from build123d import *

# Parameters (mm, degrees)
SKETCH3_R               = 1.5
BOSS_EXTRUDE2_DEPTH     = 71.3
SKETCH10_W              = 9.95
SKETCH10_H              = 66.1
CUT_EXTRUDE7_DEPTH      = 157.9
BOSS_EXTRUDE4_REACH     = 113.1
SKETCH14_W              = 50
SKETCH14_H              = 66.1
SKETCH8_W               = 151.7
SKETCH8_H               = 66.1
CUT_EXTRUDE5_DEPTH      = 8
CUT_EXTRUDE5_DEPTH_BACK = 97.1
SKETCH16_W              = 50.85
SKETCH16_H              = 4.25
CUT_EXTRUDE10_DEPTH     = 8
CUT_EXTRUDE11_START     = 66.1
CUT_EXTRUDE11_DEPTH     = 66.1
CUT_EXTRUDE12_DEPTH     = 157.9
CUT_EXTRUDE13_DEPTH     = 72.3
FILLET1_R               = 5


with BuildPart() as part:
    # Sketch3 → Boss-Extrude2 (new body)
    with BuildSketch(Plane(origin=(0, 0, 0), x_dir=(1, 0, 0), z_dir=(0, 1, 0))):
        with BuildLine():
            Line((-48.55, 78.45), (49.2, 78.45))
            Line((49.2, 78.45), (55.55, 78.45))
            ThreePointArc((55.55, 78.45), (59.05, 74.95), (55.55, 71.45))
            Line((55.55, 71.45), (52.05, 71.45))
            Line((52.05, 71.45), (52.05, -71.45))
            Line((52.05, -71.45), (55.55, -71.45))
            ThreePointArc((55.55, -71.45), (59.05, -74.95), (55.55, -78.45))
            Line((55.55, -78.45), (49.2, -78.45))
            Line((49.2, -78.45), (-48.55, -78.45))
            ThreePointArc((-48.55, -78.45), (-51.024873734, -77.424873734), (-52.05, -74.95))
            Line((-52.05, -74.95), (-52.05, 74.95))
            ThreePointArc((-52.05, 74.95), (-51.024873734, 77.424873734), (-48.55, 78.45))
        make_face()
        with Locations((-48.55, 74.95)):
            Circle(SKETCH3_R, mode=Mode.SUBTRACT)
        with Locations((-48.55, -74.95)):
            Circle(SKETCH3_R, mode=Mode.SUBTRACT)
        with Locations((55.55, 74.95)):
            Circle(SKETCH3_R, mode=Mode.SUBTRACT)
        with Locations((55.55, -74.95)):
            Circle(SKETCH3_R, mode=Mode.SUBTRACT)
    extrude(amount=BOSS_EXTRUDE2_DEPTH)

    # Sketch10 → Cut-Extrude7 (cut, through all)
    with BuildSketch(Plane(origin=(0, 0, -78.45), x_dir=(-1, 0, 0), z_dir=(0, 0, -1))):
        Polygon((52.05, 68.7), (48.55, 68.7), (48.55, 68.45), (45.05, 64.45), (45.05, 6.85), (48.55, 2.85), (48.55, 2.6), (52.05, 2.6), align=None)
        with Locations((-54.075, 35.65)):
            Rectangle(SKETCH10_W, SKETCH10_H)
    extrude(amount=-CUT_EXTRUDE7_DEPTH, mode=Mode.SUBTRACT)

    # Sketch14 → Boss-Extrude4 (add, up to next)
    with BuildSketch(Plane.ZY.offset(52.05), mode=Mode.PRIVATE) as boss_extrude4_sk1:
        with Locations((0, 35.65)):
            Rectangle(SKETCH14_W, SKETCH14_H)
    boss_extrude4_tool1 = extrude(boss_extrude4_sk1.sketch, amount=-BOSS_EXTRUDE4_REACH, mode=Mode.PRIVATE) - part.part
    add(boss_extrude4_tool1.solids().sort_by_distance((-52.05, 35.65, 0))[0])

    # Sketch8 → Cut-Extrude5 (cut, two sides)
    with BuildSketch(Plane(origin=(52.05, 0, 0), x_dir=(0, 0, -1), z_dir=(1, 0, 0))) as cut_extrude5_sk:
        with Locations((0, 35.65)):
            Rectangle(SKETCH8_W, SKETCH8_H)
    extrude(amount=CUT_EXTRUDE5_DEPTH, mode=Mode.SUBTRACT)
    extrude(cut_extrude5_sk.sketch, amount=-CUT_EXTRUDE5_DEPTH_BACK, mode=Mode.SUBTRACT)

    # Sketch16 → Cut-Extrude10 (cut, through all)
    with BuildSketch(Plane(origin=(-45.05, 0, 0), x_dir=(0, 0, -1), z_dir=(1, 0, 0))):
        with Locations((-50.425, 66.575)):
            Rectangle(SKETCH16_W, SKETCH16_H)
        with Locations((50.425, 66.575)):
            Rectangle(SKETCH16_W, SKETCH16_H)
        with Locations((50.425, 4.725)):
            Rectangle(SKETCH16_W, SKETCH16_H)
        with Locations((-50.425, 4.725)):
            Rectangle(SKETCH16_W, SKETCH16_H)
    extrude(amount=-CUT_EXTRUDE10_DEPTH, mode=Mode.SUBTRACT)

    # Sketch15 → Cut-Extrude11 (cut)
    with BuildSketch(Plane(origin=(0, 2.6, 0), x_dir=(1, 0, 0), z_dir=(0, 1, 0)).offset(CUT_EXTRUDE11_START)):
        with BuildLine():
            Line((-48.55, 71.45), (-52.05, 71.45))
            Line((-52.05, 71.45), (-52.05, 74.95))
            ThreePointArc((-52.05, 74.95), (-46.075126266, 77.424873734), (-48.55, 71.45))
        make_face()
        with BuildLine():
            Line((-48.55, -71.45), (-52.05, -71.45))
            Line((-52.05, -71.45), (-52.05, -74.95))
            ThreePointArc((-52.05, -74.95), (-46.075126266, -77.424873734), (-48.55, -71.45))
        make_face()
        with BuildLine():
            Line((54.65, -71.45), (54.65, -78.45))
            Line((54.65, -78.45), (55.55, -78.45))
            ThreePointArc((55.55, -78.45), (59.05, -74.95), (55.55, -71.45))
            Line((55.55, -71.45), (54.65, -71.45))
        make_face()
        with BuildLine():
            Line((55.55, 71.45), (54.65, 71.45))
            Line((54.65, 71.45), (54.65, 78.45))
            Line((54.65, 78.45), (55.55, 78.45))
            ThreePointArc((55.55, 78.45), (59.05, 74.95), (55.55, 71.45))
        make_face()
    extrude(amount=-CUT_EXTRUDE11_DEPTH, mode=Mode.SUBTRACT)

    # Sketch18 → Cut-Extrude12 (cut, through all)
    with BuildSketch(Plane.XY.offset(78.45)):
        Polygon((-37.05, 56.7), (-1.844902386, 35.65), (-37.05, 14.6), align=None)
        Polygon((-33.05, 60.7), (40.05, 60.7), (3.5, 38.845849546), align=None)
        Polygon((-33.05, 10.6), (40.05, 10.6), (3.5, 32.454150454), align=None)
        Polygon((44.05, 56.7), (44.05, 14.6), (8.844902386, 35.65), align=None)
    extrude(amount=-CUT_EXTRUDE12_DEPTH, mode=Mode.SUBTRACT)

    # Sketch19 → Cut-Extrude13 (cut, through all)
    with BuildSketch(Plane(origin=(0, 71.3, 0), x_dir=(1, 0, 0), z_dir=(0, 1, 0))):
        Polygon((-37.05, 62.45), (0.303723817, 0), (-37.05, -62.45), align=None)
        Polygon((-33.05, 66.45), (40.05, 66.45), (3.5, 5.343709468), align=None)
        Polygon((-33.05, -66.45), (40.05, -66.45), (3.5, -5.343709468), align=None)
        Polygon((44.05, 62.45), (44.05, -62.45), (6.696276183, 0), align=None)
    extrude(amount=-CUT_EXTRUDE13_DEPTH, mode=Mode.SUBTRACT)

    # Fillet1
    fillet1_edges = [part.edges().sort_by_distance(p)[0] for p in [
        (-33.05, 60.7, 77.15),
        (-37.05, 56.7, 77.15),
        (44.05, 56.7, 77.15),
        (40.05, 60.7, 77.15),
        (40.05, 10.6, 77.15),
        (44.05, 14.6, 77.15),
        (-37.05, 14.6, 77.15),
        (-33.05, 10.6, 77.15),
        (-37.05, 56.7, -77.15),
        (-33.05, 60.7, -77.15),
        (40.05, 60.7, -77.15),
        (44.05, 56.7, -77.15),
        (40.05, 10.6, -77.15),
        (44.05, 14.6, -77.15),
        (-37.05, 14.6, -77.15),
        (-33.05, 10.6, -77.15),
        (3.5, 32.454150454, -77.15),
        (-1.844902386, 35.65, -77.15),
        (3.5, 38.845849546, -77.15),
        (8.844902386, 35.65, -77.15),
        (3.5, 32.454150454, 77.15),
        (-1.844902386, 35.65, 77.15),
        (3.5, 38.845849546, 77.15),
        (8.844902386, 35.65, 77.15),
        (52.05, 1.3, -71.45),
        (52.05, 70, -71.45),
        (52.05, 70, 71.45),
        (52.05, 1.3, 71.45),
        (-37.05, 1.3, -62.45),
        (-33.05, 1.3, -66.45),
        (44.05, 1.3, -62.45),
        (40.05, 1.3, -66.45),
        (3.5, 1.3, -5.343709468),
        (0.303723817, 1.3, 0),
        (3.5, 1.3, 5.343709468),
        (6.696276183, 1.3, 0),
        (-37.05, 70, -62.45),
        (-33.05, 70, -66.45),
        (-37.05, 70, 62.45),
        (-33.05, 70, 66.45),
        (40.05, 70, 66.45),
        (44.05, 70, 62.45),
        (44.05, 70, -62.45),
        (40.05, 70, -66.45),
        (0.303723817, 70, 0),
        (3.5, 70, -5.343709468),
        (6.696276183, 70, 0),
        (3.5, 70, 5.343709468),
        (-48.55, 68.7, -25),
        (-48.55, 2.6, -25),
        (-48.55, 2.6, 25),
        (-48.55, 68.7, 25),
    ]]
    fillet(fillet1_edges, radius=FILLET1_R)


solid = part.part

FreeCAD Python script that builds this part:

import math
import FreeCAD as App
import Part
import Sketcher

V = App.Vector


def edges_at(feature, points):
    """Names of the edges that pass closest to the given points."""
    edges = feature.Shape.Edges
    near = lambda p: min(range(len(edges)), key=lambda i: edges[i].distToShape(Part.Vertex(*p))[0])
    return sorted({f"Edge{near(p) + 1}" for p in points})


def add_polygon(sketch, points):
    """Adds a closed chain of lines whose ends are joined by coincident constraints."""
    first, n = sketch.GeometryCount, len(points)
    for a, b in zip(points, points[1:] + points[:1]):
        sketch.addGeometry(Part.LineSegment(App.Vector(*a, 0), App.Vector(*b, 0)), False)
    for i in range(n):
        sketch.addConstraint(Sketcher.Constraint("Coincident", first + i, 2, first + (i + 1) % n, 1))

doc = App.newDocument("Part")
params = doc.addObject("Spreadsheet::Sheet", "Params")
for row, (alias, value) in enumerate([
    ("sketch1_diameter", "3 mm"),
    ("sketch1_radius", "3.5 mm"),
    ("sketch1_width", "104.1 mm"),
    ("sketch1_width2", "3.5 mm"),
    ("sketch1_height", "149.9 mm"),
    ("pad1_length", "71.3 mm"),
    ("sketch2_width", "3.5 mm"),
    ("sketch2_height", "57.6 mm"),
    ("sketch2_height2", "66.1 mm"),
    ("sketch2_width2", "9.95 mm"),
    ("sketch3_height", "50 mm"),
    ("sketch3_width", "66.1 mm"),
    ("sketch4_width", "66.1 mm"),
    ("sketch4_height", "151.7 mm"),
    ("pocket2_length", "8 mm"),
    ("pocket2_length2", "97.1 mm"),
    ("sketch5_width", "4.25 mm"),
    ("sketch5_height", "50.85 mm"),
    ("sketch6_radius", "3.5 mm"),
    ("sketch6_width", "0.9 mm"),
    ("pocket4_length", "66.1 mm"),
    ("sketch7_width", "73.1 mm"),
    ("sketch7_height", "42.1 mm"),
    ("sketch8_width", "73.1 mm"),
    ("sketch8_height", "124.9 mm"),
    ("fillet_radius", "5 mm"),
], start=1):
    params.set(f"A{row}", alias)
    params.set(f"B{row}", "=" + value)
    params.setAlias(f"B{row}", alias)

body = doc.addObject("PartDesign::Body", "Body")

# Sketch on XZ plane
sketch1 = body.newObject("Sketcher::SketchObject", "Sketch")
sketch1.AttachmentSupport = (doc.getObject("XZ_Plane"), [""])
sketch1.MapMode = "FlatFace"
sketch1.addGeometry([
    Part.LineSegment(V(55.55, -78.45, 0), V(-48.55, -78.45, 0)),  # 0
    Part.ArcOfCircle(Part.Circle(V(-48.55, -74.95, 0), V(0, 0, 1), 3.5), math.radians(-180), math.radians(-90)),  # 1
    Part.LineSegment(V(-52.05, -74.95, 0), V(-52.05, 74.95, 0)),  # 2
    Part.ArcOfCircle(Part.Circle(V(-48.55, 74.95, 0), V(0, 0, 1), 3.5), math.radians(90), math.radians(180)),  # 3
    Part.LineSegment(V(-48.55, 78.45, 0), V(55.55, 78.45, 0)),  # 4
    Part.ArcOfCircle(Part.Circle(V(55.55, 74.95, 0), V(0, 0, 1), 3.5), math.radians(-90), math.radians(90)),  # 5
    Part.LineSegment(V(55.55, 71.45, 0), V(52.05, 71.45, 0)),  # 6
    Part.LineSegment(V(52.05, 71.45, 0), V(52.05, -71.45, 0)),  # 7
    Part.LineSegment(V(52.05, -71.45, 0), V(55.55, -71.45, 0)),  # 8
    Part.ArcOfCircle(Part.Circle(V(55.55, -74.95, 0), V(0, 0, 1), 3.5), math.radians(-90), math.radians(90)),  # 9
    Part.Circle(V(55.55, 74.95, 0), V(0, 0, 1), 1.5),  # 10
    Part.Circle(V(-48.55, 74.95, 0), V(0, 0, 1), 1.5),  # 11
    Part.Circle(V(55.55, -74.95, 0), V(0, 0, 1), 1.5),  # 12
    Part.Circle(V(-48.55, -74.95, 0), V(0, 0, 1), 1.5),  # 13
], False)
sketch1.addConstraint([
    Sketcher.Constraint("Tangent", 0, 2, 1, 2),
    Sketcher.Constraint("Tangent", 1, 1, 2, 1),
    Sketcher.Constraint("Tangent", 2, 2, 3, 2),
    Sketcher.Constraint("Tangent", 3, 1, 4, 1),
    Sketcher.Constraint("Tangent", 4, 2, 5, 2),
    Sketcher.Constraint("Tangent", 5, 1, 6, 1),
    Sketcher.Constraint("Coincident", 6, 2, 7, 1),
    Sketcher.Constraint("Coincident", 7, 2, 8, 1),
    Sketcher.Constraint("Tangent", 8, 2, 9, 2),
    Sketcher.Constraint("Tangent", 9, 1, 0, 1),
    Sketcher.Constraint("Horizontal", 0),
    Sketcher.Constraint("Vertical", 2),
    Sketcher.Constraint("Horizontal", 4),
    Sketcher.Constraint("Horizontal", 6),
    Sketcher.Constraint("Vertical", 7),
    Sketcher.Constraint("Horizontal", 8),
    Sketcher.Constraint("Coincident", 10, 3, 5, 3),
    Sketcher.Constraint("Coincident", 11, 3, 3, 3),
    Sketcher.Constraint("Coincident", 12, 3, 9, 3),
    Sketcher.Constraint("Coincident", 13, 3, 1, 3),
    Sketcher.Constraint("Equal", 1, 3),
    Sketcher.Constraint("Equal", 3, 5),
    Sketcher.Constraint("Equal", 5, 9),
    Sketcher.Constraint("Equal", 10, 11),
    Sketcher.Constraint("Equal", 11, 12),
    Sketcher.Constraint("Equal", 12, 13),
    Sketcher.Constraint("Symmetric", 5, 3, 9, 3, -1),
    Sketcher.Constraint("Diameter", 10, 3.0),
    Sketcher.Constraint("Radius", 1, 3.5),
    Sketcher.Constraint("DistanceX", 0, 2, 0, 1, 104.1),
    Sketcher.Constraint("DistanceX", 6, 2, 6, 1, 3.5),
    Sketcher.Constraint("DistanceY", 2, 1, 2, 2, 149.9),
    Sketcher.Constraint("DistanceX", 1, 3, -1, 1, 48.55),
])
sketch1.setExpression("Constraints[27]", "Params.sketch1_diameter")
sketch1.setExpression("Constraints[28]", "Params.sketch1_radius")
sketch1.setExpression("Constraints[29]", "Params.sketch1_width")
sketch1.setExpression("Constraints[30]", "Params.sketch1_width2")
sketch1.setExpression("Constraints[31]", "Params.sketch1_height")
pad1 = body.newObject("PartDesign::Pad", "Pad")
pad1.Profile = sketch1
pad1.setExpression("Length", "Params.pad1_length")
pad1.Reversed = True

# Sketch on XY plane
sketch2 = body.newObject("Sketcher::SketchObject", "Sketch001")
sketch2.AttachmentSupport = (doc.getObject("XY_Plane"), [""])
sketch2.MapMode = "FlatFace"
sketch2.AttachmentOffset = App.Placement(V(0, 0, -78.45), App.Rotation())
add_polygon(sketch2, [(-52.05, 68.7), (-48.55, 68.7), (-48.55, 68.45), (-45.05, 64.45), (-45.05, 6.85), (-48.55, 2.85), (-48.55, 2.6), (-52.05, 2.6)])  # lines 0-7
add_polygon(sketch2, [(59.05, 68.7), (59.05, 2.6), (49.1, 2.6), (49.1, 68.7)])  # lines 8-11
sketch2.addConstraint([
    Sketcher.Constraint("Horizontal", 0),
    Sketcher.Constraint("Vertical", 1),
    Sketcher.Constraint("Vertical", 3),
    Sketcher.Constraint("Vertical", 5),
    Sketcher.Constraint("Horizontal", 6),
    Sketcher.Constraint("Vertical", 7),
    Sketcher.Constraint("Vertical", 8),
    Sketcher.Constraint("Horizontal", 9),
    Sketcher.Constraint("Vertical", 10),
    Sketcher.Constraint("Horizontal", 11),
    Sketcher.Constraint("Horizontal", 6, 2, 8, 2),
    Sketcher.Constraint("Horizontal", 7, 2, 10, 2),
    Sketcher.Constraint("Vertical", 1, 2, 4, 2),
    Sketcher.Constraint("Equal", 1, 5),
    Sketcher.Constraint("Equal", 2, 4),
    Sketcher.Constraint("DistanceX", 0, 1, 0, 2, 3.5),
    Sketcher.Constraint("DistanceY", 3, 2, 3, 1, 57.6),
    Sketcher.Constraint("DistanceY", 7, 1, 7, 2, 66.1),
    Sketcher.Constraint("DistanceY", 2, 2, 1, 2, 4.0),
    Sketcher.Constraint("DistanceX", 6, 2, 3, 2, 7.0),
    Sketcher.Constraint("DistanceX", 9, 2, 9, 1, 9.95),
    Sketcher.Constraint("DistanceY", -1, 1, 0, 2, 68.7),
    Sketcher.Constraint("DistanceX", -1, 1, 9, 2, 49.1),
    Sketcher.Constraint("DistanceX", 3, 2, 8, 2, 104.1),
])
sketch2.setExpression("Constraints[27]", "Params.sketch2_width")
sketch2.setExpression("Constraints[28]", "Params.sketch2_height")
sketch2.setExpression("Constraints[29]", "Params.sketch2_height2")
sketch2.setExpression("Constraints[32]", "Params.sketch2_width2")
pocket1 = body.newObject("PartDesign::Pocket", "Pocket")
pocket1.Profile = sketch2
pocket1.Type = "ThroughAll"
pocket1.Reversed = True

# Sketch on YZ plane
sketch3 = body.newObject("Sketcher::SketchObject", "Sketch002")
sketch3.AttachmentSupport = (doc.getObject("YZ_Plane"), [""])
sketch3.MapMode = "FlatFace"
sketch3.AttachmentOffset = App.Placement(V(0, 0, -52.05), App.Rotation())
add_polygon(sketch3, [(68.7, -25), (2.6, -25), (2.6, 25), (68.7, 25)])  # lines 0-3
sketch3.addConstraint([
    Sketcher.Constraint("Horizontal", 0),
    Sketcher.Constraint("Vertical", 1),
    Sketcher.Constraint("Horizontal", 2),
    Sketcher.Constraint("Vertical", 3),
    Sketcher.Constraint("DistanceY", 1, 1, 1, 2, 50.0),
    Sketcher.Constraint("DistanceX", 0, 2, 0, 1, 66.1),
    Sketcher.Constraint("DistanceY", 0, 2, -1, 1, 25.0),
    Sketcher.Constraint("DistanceX", -1, 1, 0, 2, 2.6),
])
sketch3.setExpression("Constraints[8]", "Params.sketch3_height")
sketch3.setExpression("Constraints[9]", "Params.sketch3_width")
pad2 = body.newObject("PartDesign::Pad", "Pad001")
pad2.Profile = sketch3
pad2.Type = "UpToFirst"

# Sketch on YZ plane
sketch4 = body.newObject("Sketcher::SketchObject", "Sketch003")
sketch4.AttachmentSupport = (doc.getObject("YZ_Plane"), [""])
sketch4.MapMode = "FlatFace"
sketch4.AttachmentOffset = App.Placement(V(0, 0, 52.05), App.Rotation())
add_polygon(sketch4, [(68.7, 75.85), (2.6, 75.85), (2.6, -75.85), (68.7, -75.85)])  # lines 0-3
sketch4.addConstraint([
    Sketcher.Constraint("Horizontal", 0),
    Sketcher.Constraint("Vertical", 1),
    Sketcher.Constraint("Horizontal", 2),
    Sketcher.Constraint("Vertical", 3),
    Sketcher.Constraint("DistanceX", 0, 2, 0, 1, 66.1),
    Sketcher.Constraint("DistanceY", 1, 2, 1, 1, 151.7),
    Sketcher.Constraint("DistanceX", -1, 1, 0, 2, 2.6),
    Sketcher.Constraint("DistanceY", -1, 1, 0, 2, 75.85),
])
sketch4.setExpression("Constraints[8]", "Params.sketch4_width")
sketch4.setExpression("Constraints[9]", "Params.sketch4_height")
pocket2 = body.newObject("PartDesign::Pocket", "Pocket001")
pocket2.Profile = sketch4
pocket2.Type = "TwoLengths"
pocket2.setExpression("Length", "Params.pocket2_length")
pocket2.setExpression("Length2", "Params.pocket2_length2")
pocket2.Reversed = True

# Sketch on YZ plane
sketch5 = body.newObject("Sketcher::SketchObject", "Sketch004")
sketch5.AttachmentSupport = (doc.getObject("YZ_Plane"), [""])
sketch5.MapMode = "FlatFace"
sketch5.AttachmentOffset = App.Placement(V(0, 0, -45.05), App.Rotation())
add_polygon(sketch5, [(68.7, 75.85), (64.45, 75.85), (64.45, 25), (68.7, 25)])  # lines 0-3
add_polygon(sketch5, [(68.7, -25), (64.45, -25), (64.45, -75.85), (68.7, -75.85)])  # lines 4-7
add_polygon(sketch5, [(6.85, -25), (2.6, -25), (2.6, -75.85), (6.85, -75.85)])  # lines 8-11
add_polygon(sketch5, [(6.85, 75.85), (2.6, 75.85), (2.6, 25), (6.85, 25)])  # lines 12-15
sketch5.addConstraint([
    Sketcher.Constraint("Horizontal", 0),
    Sketcher.Constraint("Vertical", 1),
    Sketcher.Constraint("Horizontal", 2),
    Sketcher.Constraint("Vertical", 3),
    Sketcher.Constraint("Horizontal", 4),
    Sketcher.Constraint("Vertical", 5),
    Sketcher.Constraint("Horizontal", 6),
    Sketcher.Constraint("Vertical", 7),
    Sketcher.Constraint("Horizontal", 8),
    Sketcher.Constraint("Vertical", 9),
    Sketcher.Constraint("Horizontal", 10),
    Sketcher.Constraint("Vertical", 11),
    Sketcher.Constraint("Horizontal", 12),
    Sketcher.Constraint("Vertical", 13),
    Sketcher.Constraint("Horizontal", 14),
    Sketcher.Constraint("Vertical", 15),
    Sketcher.Constraint("Symmetric", 1, 2, 4, 2, -1),
    Sketcher.Constraint("Symmetric", 3, 2, 6, 2, -1),
    Sketcher.Constraint("Symmetric", 9, 2, 12, 2, -1),
    Sketcher.Constraint("Symmetric", 11, 2, 14, 2, -1),
    Sketcher.Constraint("Horizontal", 7, 2, 8, 2),
    Sketcher.Constraint("Horizontal", 6, 2, 9, 2),
    Sketcher.Constraint("Equal", 6, 8),
    Sketcher.Constraint("DistanceY", -1, 1, 1, 2, 25.0),
    Sketcher.Constraint("DistanceX", 0, 2, 0, 1, 4.25),
    Sketcher.Constraint("DistanceY", 1, 2, 1, 1, 50.85),
    Sketcher.Constraint("DistanceX", -1, 1, 2, 2, 68.7),
    Sketcher.Constraint("DistanceX", -1, 1, 8, 2, 2.6),
])
sketch5.setExpression("Constraints[40]", "Params.sketch5_width")
sketch5.setExpression("Constraints[41]", "Params.sketch5_height")
pocket3 = body.newObject("PartDesign::Pocket", "Pocket002")
pocket3.Profile = sketch5
pocket3.Type = "ThroughAll"

# Sketch on XZ plane
sketch6 = body.newObject("Sketcher::SketchObject", "Sketch005")
sketch6.AttachmentSupport = (doc.getObject("XZ_Plane"), [""])
sketch6.MapMode = "FlatFace"
sketch6.AttachmentOffset = App.Placement(V(0, 0, -68.7), App.Rotation())
sketch6.addGeometry([
    Part.LineSegment(V(-52.05, -71.45, 0), V(-48.55, -71.45, 0)),  # 0
    Part.ArcOfCircle(Part.Circle(V(-48.55, -74.95, 0), V(0, 0, 1), 3.5), math.radians(180), math.radians(450)),  # 1
    Part.LineSegment(V(-52.05, -74.95, 0), V(-52.05, -71.45, 0)),  # 2
    Part.LineSegment(V(-48.55, 71.45, 0), V(-52.05, 71.45, 0)),  # 3
    Part.LineSegment(V(-52.05, 71.45, 0), V(-52.05, 74.95, 0)),  # 4
    Part.ArcOfCircle(Part.Circle(V(-48.55, 74.95, 0), V(0, 0, 1), 3.5), math.radians(-90), math.radians(180)),  # 5
    Part.LineSegment(V(54.65, 71.45, 0), V(54.65, 78.45, 0)),  # 6
    Part.LineSegment(V(54.65, 78.45, 0), V(55.55, 78.45, 0)),  # 7
    Part.ArcOfCircle(Part.Circle(V(55.55, 74.95, 0), V(0, 0, 1), 3.5), math.radians(-90), math.radians(90)),  # 8
    Part.LineSegment(V(55.55, 71.45, 0), V(54.65, 71.45, 0)),  # 9
    Part.LineSegment(V(54.65, -71.45, 0), V(55.55, -71.45, 0)),  # 10
    Part.ArcOfCircle(Part.Circle(V(55.55, -74.95, 0), V(0, 0, 1), 3.5), math.radians(-90), math.radians(90)),  # 11
    Part.LineSegment(V(55.55, -78.45, 0), V(54.65, -78.45, 0)),  # 12
    Part.LineSegment(V(54.65, -78.45, 0), V(54.65, -71.45, 0)),  # 13
], False)
sketch6.addConstraint([
    Sketcher.Constraint("Tangent", 0, 2, 1, 2),
    Sketcher.Constraint("Tangent", 1, 1, 2, 1),
    Sketcher.Constraint("Coincident", 2, 2, 0, 1),
    Sketcher.Constraint("Coincident", 3, 2, 4, 1),
    Sketcher.Constraint("Tangent", 4, 2, 5, 2),
    Sketcher.Constraint("Tangent", 5, 1, 3, 1),
    Sketcher.Constraint("Coincident", 6, 2, 7, 1),
    Sketcher.Constraint("Tangent", 7, 2, 8, 2),
    Sketcher.Constraint("Tangent", 8, 1, 9, 1),
    Sketcher.Constraint("Coincident", 9, 2, 6, 1),
    Sketcher.Constraint("Tangent", 10, 2, 11, 2),
    Sketcher.Constraint("Tangent", 11, 1, 12, 1),
    Sketcher.Constraint("Coincident", 12, 2, 13, 1),
    Sketcher.Constraint("Coincident", 13, 2, 10, 1),
    Sketcher.Constraint("Horizontal", 0),
    Sketcher.Constraint("Vertical", 2),
    Sketcher.Constraint("Horizontal", 3),
    Sketcher.Constraint("Vertical", 4),
    Sketcher.Constraint("Vertical", 6),
    Sketcher.Constraint("Horizontal", 7),
    Sketcher.Constraint("Horizontal", 9),
    Sketcher.Constraint("Horizontal", 10),
    Sketcher.Constraint("Horizontal", 12),
    Sketcher.Constraint("Vertical", 13),
    Sketcher.Constraint("Equal", 1, 5),
    Sketcher.Constraint("Equal", 5, 8),
    Sketcher.Constraint("Equal", 8, 11),
    Sketcher.Constraint("Symmetric", 1, 3, 5, 3, -1),
    Sketcher.Constraint("Symmetric", 8, 3, 11, 3, -1),
    Sketcher.Constraint("Horizontal", 5, 3, 8, 3),
    Sketcher.Constraint("Vertical", 9, 2, 12, 2),
    Sketcher.Constraint("Radius", 1, 3.5),
    Sketcher.Constraint("DistanceX", 7, 1, 7, 2, 0.9),
    Sketcher.Constraint("DistanceY", 1, 3, 5, 3, 149.9),
    Sketcher.Constraint("DistanceX", 5, 3, 8, 3, 104.1),
    Sketcher.Constraint("DistanceX", 1, 3, -1, 1, 48.55),
])
sketch6.setExpression("Constraints[31]", "Params.sketch6_radius")
sketch6.setExpression("Constraints[32]", "Params.sketch6_width")
pocket4 = body.newObject("PartDesign::Pocket", "Pocket003")
pocket4.Profile = sketch6
pocket4.setExpression("Length", "Params.pocket4_length")
pocket4.Reversed = True

# Sketch on XY plane
sketch7 = body.newObject("Sketcher::SketchObject", "Sketch006")
sketch7.AttachmentSupport = (doc.getObject("XY_Plane"), [""])
sketch7.MapMode = "FlatFace"
sketch7.AttachmentOffset = App.Placement(V(0, 0, 78.45), App.Rotation())
add_polygon(sketch7, [(-1.844902, 35.65), (-37.05, 56.7), (-37.05, 14.6)])  # lines 0-2
add_polygon(sketch7, [(40.05, 60.7), (-33.05, 60.7), (3.5, 38.84585)])  # lines 3-5
add_polygon(sketch7, [(-33.05, 10.6), (40.05, 10.6), (3.5, 32.45415)])  # lines 6-8
add_polygon(sketch7, [(44.05, 14.6), (44.05, 56.7), (8.844902, 35.65)])  # lines 9-11
sketch7.addConstraint([
    Sketcher.Constraint("Vertical", 1),
    Sketcher.Constraint("Horizontal", 3),
    Sketcher.Constraint("Horizontal", 6),
    Sketcher.Constraint("Vertical", 9),
    Sketcher.Constraint("Parallel", 0, 4),
    Sketcher.Constraint("Parallel", 2, 5),
    Sketcher.Constraint("Parallel", 4, 7),
    Sketcher.Constraint("Parallel", 5, 8),
    Sketcher.Constraint("Parallel", 8, 10),
    Sketcher.Constraint("Parallel", 7, 11),
    Sketcher.Constraint("Horizontal", 0, 2, 9, 2),
    Sketcher.Constraint("Horizontal", 2, 2, 10, 2),
    Sketcher.Constraint("Horizontal", 1, 2, 11, 2),
    Sketcher.Constraint("Vertical", 5, 2, 6, 2),
    Sketcher.Constraint("Vertical", 4, 2, 7, 2),
    Sketcher.Constraint("DistanceX", 3, 2, 3, 1, 73.1),
    Sketcher.Constraint("DistanceY", 1, 2, 1, 1, 42.1),
    Sketcher.Constraint("DistanceX", 0, 2, 3, 2, 4.0),
    Sketcher.Constraint("DistanceY", 0, 2, 3, 2, 4.0),
    Sketcher.Constraint("DistanceY", 6, 2, 1, 2, 4.0),
    Sketcher.Constraint("DistanceX", 5, 2, 9, 2, 4.0),
    Sketcher.Constraint("DistanceY", -1, 1, 0, 2, 56.7),
    Sketcher.Constraint("DistanceX", -1, 1, 4, 2, 3.5),
    Sketcher.Constraint("DistanceY", 7, 2, 4, 2, 6.391699),
])
sketch7.setExpression("Constraints[27]", "Params.sketch7_width")
sketch7.setExpression("Constraints[28]", "Params.sketch7_height")
pocket5 = body.newObject("PartDesign::Pocket", "Pocket004")
pocket5.Profile = sketch7
pocket5.Type = "ThroughAll"

# Sketch on XZ plane
sketch8 = body.newObject("Sketcher::SketchObject", "Sketch007")
sketch8.AttachmentSupport = (doc.getObject("XZ_Plane"), [""])
sketch8.MapMode = "FlatFace"
sketch8.AttachmentOffset = App.Placement(V(0, 0, -71.3), App.Rotation())
add_polygon(sketch8, [(0.303724, 0), (-37.05, -62.45), (-37.05, 62.45)])  # lines 0-2
add_polygon(sketch8, [(40.05, -66.45), (-33.05, -66.45), (3.5, -5.343709)])  # lines 3-5
add_polygon(sketch8, [(-33.05, 66.45), (40.05, 66.45), (3.5, 5.343709)])  # lines 6-8
add_polygon(sketch8, [(44.05, 62.45), (44.05, -62.45), (6.696276, 0)])  # lines 9-11
sketch8.addConstraint([
    Sketcher.Constraint("Vertical", 1),
    Sketcher.Constraint("Horizontal", 3),
    Sketcher.Constraint("Horizontal", 6),
    Sketcher.Constraint("Vertical", 9),
    Sketcher.Constraint("Symmetric", 5, 2, 6, 2, -1),
    Sketcher.Constraint("Symmetric", 4, 2, 7, 2, -1),
    Sketcher.Constraint("PointOnObject", 2, 2, -1),
    Sketcher.Constraint("PointOnObject", 10, 2, -1),
    Sketcher.Constraint("Parallel", 0, 4),
    Sketcher.Constraint("Parallel", 2, 5),
    Sketcher.Constraint("Parallel", 4, 7),
    Sketcher.Constraint("Parallel", 5, 8),
    Sketcher.Constraint("Parallel", 8, 10),
    Sketcher.Constraint("Parallel", 7, 11),
    Sketcher.Constraint("Horizontal", 0, 2, 9, 2),
    Sketcher.Constraint("DistanceX", 3, 2, 3, 1, 73.1),
    Sketcher.Constraint("DistanceY", 1, 1, 1, 2, 124.9),
    Sketcher.Constraint("DistanceX", 0, 2, 3, 2, 4.0),
    Sketcher.Constraint("DistanceY", 3, 2, 0, 2, 4.0),
    Sketcher.Constraint("DistanceX", 5, 2, 9, 2, 4.0),
    Sketcher.Constraint("DistanceX", -1, 1, 4, 2, 3.5),
    Sketcher.Constraint("Distance", 4, 71.203099),
])
sketch8.setExpression("Constraints[27]", "Params.sketch8_width")
sketch8.setExpression("Constraints[28]", "Params.sketch8_height")
pocket6 = body.newObject("PartDesign::Pocket", "Pocket005")
pocket6.Profile = sketch8
pocket6.Type = "ThroughAll"
pocket6.Reversed = True
doc.recompute()

fillet = body.newObject("PartDesign::Fillet", "Fillet")
fillet.Base = (pocket6, edges_at(pocket6, [
    (-33.05, 60.7, 77.15),
    (-37.05, 56.7, 77.15),
    (44.05, 56.7, 77.15),
    (40.05, 60.7, 77.15),
    (40.05, 10.6, 77.15),
    (44.05, 14.6, 77.15),
    (-37.05, 14.6, 77.15),
    (-33.05, 10.6, 77.15),
    (-37.05, 56.7, -77.15),
    (-33.05, 60.7, -77.15),
    (40.05, 60.7, -77.15),
    (44.05, 56.7, -77.15),
    (40.05, 10.6, -77.15),
    (44.05, 14.6, -77.15),
    (-37.05, 14.6, -77.15),
    (-33.05, 10.6, -77.15),
    (3.5, 32.454, -77.15),
    (-1.845, 35.65, -77.15),
    (3.5, 38.846, -77.15),
    (8.845, 35.65, -77.15),
    (3.5, 32.454, 77.15),
    (-1.845, 35.65, 77.15),
    (3.5, 38.846, 77.15),
    (8.845, 35.65, 77.15),
    (52.05, 1.3, -71.45),
    (52.05, 70, -71.45),
    (52.05, 70, 71.45),
    (52.05, 1.3, 71.45),
    (-37.05, 1.3, -62.45),
    (-33.05, 1.3, -66.45),
    (44.05, 1.3, -62.45),
    (40.05, 1.3, -66.45),
    (3.5, 1.3, -5.344),
    (0.304, 1.3, 0),
    (3.5, 1.3, 5.344),
    (6.696, 1.3, 0),
    (-37.05, 70, -62.45),
    (-33.05, 70, -66.45),
    (-37.05, 70, 62.45),
    (-33.05, 70, 66.45),
    (40.05, 70, 66.45),
    (44.05, 70, 62.45),
    (44.05, 70, -62.45),
    (40.05, 70, -66.45),
    (0.304, 70, 0),
    (3.5, 70, -5.344),
    (6.696, 70, 0),
    (3.5, 70, 5.344),
    (-48.55, 68.7, -25),
    (-48.55, 2.6, -25),
    (-48.55, 2.6, 25),
    (-48.55, 68.7, 25),
]))
fillet.setExpression("Radius", "Params.fillet_radius")

doc.recompute()
